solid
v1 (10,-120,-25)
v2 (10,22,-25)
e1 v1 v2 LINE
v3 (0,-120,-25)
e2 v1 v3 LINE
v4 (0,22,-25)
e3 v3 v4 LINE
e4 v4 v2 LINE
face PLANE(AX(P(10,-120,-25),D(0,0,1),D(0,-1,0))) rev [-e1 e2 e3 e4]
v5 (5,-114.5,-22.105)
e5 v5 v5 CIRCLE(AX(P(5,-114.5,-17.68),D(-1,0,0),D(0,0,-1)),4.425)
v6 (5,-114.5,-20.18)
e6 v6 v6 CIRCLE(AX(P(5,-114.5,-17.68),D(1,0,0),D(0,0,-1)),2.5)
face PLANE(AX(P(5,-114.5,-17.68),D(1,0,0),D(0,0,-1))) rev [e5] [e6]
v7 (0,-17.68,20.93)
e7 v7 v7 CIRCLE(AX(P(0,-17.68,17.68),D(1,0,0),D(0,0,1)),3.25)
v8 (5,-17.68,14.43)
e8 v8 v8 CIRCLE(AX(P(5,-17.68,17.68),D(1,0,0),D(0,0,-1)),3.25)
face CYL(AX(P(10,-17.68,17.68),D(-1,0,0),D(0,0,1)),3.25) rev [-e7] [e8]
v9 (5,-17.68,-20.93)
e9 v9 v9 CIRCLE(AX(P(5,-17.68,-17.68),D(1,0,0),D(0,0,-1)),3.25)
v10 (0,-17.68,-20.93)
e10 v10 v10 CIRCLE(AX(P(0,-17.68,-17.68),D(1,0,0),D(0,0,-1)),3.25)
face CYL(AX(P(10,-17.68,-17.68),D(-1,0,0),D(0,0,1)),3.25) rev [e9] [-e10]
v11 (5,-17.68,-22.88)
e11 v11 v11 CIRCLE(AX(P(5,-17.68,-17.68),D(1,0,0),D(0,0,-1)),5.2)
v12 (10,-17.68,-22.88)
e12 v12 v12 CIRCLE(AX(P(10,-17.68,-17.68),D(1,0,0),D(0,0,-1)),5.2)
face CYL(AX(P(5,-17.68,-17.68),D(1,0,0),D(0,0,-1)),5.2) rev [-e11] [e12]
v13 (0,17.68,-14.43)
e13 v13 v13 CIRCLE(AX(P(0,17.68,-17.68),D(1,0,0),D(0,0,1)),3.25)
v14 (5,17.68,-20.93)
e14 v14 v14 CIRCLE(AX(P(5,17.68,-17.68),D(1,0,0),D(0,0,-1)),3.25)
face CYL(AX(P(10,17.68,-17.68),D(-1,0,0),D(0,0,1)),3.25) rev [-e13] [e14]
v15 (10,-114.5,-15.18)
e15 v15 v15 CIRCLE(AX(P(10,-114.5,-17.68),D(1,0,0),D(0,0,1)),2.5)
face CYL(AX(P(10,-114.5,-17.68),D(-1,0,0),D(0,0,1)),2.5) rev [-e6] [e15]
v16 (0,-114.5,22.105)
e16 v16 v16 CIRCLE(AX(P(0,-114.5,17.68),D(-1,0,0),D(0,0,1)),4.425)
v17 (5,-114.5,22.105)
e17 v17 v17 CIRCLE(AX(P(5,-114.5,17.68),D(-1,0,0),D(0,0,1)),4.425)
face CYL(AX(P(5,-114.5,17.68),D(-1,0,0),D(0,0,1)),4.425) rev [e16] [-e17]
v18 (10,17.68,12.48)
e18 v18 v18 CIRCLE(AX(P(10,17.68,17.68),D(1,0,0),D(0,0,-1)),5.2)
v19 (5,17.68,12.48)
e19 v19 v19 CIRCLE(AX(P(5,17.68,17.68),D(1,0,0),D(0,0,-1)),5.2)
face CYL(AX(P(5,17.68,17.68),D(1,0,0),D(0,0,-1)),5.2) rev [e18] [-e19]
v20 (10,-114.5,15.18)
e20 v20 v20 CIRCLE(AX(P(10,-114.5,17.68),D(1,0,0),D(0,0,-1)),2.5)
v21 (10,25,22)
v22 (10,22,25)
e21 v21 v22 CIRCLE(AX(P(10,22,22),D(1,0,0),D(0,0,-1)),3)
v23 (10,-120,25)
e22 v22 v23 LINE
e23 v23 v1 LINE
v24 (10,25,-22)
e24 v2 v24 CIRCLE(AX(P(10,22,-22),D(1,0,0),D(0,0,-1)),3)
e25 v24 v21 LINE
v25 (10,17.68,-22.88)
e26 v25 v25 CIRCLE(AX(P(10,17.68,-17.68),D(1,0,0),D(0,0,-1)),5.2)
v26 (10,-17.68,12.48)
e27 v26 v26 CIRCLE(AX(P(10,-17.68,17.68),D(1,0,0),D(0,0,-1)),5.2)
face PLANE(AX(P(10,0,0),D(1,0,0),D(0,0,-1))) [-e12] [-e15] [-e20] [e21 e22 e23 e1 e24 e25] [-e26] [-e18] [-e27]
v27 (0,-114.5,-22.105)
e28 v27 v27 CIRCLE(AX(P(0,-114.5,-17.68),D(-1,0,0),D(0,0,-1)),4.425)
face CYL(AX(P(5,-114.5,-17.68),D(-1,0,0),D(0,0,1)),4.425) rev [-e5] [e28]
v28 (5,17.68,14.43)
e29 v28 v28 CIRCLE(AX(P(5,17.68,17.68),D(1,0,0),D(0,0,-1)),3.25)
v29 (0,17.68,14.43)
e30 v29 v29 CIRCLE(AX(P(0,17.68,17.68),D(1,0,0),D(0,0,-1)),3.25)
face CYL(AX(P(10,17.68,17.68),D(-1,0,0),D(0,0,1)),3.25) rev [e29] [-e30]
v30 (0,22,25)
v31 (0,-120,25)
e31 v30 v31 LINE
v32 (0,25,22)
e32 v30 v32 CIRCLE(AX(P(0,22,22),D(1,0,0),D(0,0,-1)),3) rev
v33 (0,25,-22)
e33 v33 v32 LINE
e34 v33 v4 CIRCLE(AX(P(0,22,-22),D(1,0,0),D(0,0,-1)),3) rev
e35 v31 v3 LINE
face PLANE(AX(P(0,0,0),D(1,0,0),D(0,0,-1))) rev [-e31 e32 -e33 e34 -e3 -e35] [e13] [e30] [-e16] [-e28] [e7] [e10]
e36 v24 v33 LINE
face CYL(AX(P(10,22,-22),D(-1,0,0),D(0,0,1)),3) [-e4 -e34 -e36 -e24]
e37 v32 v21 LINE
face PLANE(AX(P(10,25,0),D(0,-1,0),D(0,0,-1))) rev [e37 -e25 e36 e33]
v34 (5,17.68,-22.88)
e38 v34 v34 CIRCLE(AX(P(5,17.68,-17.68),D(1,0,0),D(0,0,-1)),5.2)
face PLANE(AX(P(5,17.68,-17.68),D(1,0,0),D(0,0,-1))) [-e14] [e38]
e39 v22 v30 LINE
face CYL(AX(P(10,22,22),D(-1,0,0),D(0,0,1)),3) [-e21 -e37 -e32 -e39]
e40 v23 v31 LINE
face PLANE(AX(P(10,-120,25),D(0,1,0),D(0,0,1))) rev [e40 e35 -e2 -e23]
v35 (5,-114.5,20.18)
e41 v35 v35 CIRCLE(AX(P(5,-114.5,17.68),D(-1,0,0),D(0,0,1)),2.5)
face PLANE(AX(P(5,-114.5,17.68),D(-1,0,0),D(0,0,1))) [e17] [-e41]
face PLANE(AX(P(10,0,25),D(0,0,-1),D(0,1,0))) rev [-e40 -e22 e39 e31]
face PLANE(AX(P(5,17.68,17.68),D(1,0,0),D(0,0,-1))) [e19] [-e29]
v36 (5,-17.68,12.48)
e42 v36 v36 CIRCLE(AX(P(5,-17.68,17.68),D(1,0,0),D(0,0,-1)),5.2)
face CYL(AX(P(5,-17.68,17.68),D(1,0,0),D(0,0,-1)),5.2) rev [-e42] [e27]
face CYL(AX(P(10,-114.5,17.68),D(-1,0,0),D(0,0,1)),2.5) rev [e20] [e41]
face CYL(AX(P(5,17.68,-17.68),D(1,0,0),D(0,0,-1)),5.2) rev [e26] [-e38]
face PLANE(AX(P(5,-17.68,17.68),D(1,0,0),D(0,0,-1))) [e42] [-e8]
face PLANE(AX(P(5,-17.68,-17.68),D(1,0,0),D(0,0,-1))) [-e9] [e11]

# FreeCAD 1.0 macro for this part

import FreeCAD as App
import Part
import Sketcher

V = App.Vector


def edges_at(feature, points):
    """Names of the edges that pass closest to the given points."""
    edges = feature.Shape.Edges
    near = lambda p: min(range(len(edges)), key=lambda i: edges[i].distToShape(Part.Vertex(*p))[0])
    return sorted({f"Edge{near(p) + 1}" for p in points})

doc = App.newDocument("Part")
body = doc.addObject("PartDesign::Body", "Body")

# Sketch on YZ plane
sketch1 = body.newObject("Sketcher::SketchObject", "Sketch")
sketch1.AttachmentSupport = (doc.getObject("YZ_Plane"), [""])
sketch1.MapMode = "FlatFace"
sketch1.addGeometry([
    Part.LineSegment(V(-120, 25, 0), V(-120, -25, 0)),  # 0
    Part.LineSegment(V(-120, -25, 0), V(25, -25, 0)),  # 1
    Part.LineSegment(V(25, -25, 0), V(25, 25, 0)),  # 2
    Part.LineSegment(V(25, 25, 0), V(-120, 25, 0)),  # 3
    Part.Circle(V(-114.5, 17.68, 0), V(0, 0, 1), 2.5),  # 4
    Part.Circle(V(-114.5, -17.68, 0), V(0, 0, 1), 2.5),  # 5
    Part.Circle(V(-17.68, 17.68, 0), V(0, 0, 1), 3.25),  # 6
    Part.Circle(V(17.68, 17.68, 0), V(0, 0, 1), 3.25),  # 7
    Part.Circle(V(-17.68, -17.68, 0), V(0, 0, 1), 3.25),  # 8
    Part.Circle(V(17.68, -17.68, 0), V(0, 0, 1), 3.25),  # 9
], False)
sketch1.addConstraint([
    Sketcher.Constraint("Coincident", 0, 2, 1, 1),
    Sketcher.Constraint("Coincident", 1, 2, 2, 1),
    Sketcher.Constraint("Coincident", 2, 2, 3, 1),
    Sketcher.Constraint("Coincident", 3, 2, 0, 1),
    Sketcher.Constraint("Vertical", 0),
    Sketcher.Constraint("Horizontal", 1),
    Sketcher.Constraint("Vertical", 2),
    Sketcher.Constraint("Horizontal", 3),
    Sketcher.Constraint("Equal", 4, 5),
    Sketcher.Constraint("Equal", 6, 7),
    Sketcher.Constraint("Equal", 7, 8),
    Sketcher.Constraint("Equal", 8, 9),
    Sketcher.Constraint("Symmetric", 7, 3, 8, 3, -1, 1),
    Sketcher.Constraint("Symmetric", 6, 3, 9, 3, -1, 1),
    Sketcher.Constraint("Symmetric", 6, 3, 7, 3, -2),
    Sketcher.Constraint("Symmetric", 4, 3, 5, 3, -1),
    Sketcher.Constraint("Horizontal", 4, 3, 6, 3),
    Sketcher.Constraint("Diameter", 4, 5.0),
    Sketcher.Constraint("Diameter", 6, 6.5),
    Sketcher.Constraint("DistanceX", 1, 1, 1, 2, 145.0),
    Sketcher.Constraint("DistanceY", 0, 2, 0, 1, 50.0),
    Sketcher.Constraint("DistanceX", 0, 2, -1, 1, 120.0),
    Sketcher.Constraint("DistanceY", 0, 2, -1, 1, 25.0),
    Sketcher.Constraint("DistanceX", 4, 3, -1, 1, 114.5),
    Sketcher.Constraint("DistanceY", -1, 1, 4, 3, 17.68),
    Sketcher.Constraint("DistanceX", 6, 3, -1, 1, 17.68),
])
pad1 = body.newObject("PartDesign::Pad", "Pad")
pad1.Profile = sketch1
pad1.Length = 10

# Sketch on YZ plane
sketch2 = body.newObject("Sketcher::SketchObject", "Sketch001")
sketch2.AttachmentSupport = (doc.getObject("YZ_Plane"), [""])
sketch2.MapMode = "FlatFace"
sketch2.AttachmentOffset = App.Placement(V(0, 0, 10), App.Rotation())
sketch2.addGeometry([
    Part.Circle(V(17.68, -17.68, 0), V(0, 0, 1), 5.2),
    Part.Circle(V(17.68, 17.68, 0), V(0, 0, 1), 5.2),
    Part.Circle(V(-17.68, 17.68, 0), V(0, 0, 1), 5.2),
    Part.Circle(V(-17.68, -17.68, 0), V(0, 0, 1), 5.2),
], False)
sketch2.addConstraint([
    Sketcher.Constraint("Equal", 0, 1),
    Sketcher.Constraint("Equal", 1, 2),
    Sketcher.Constraint("Equal", 2, 3),
    Sketcher.Constraint("Symmetric", 0, 3, 2, 3, -1, 1),
    Sketcher.Constraint("Symmetric", 1, 3, 3, 3, -1, 1),
    Sketcher.Constraint("Symmetric", 1, 3, 2, 3, -2),
    Sketcher.Constraint("Diameter", 0, 10.4),
    Sketcher.Constraint("DistanceX", -1, 1, 0, 3, 17.68),
    Sketcher.Constraint("DistanceY", 0, 3, -1, 1, 17.68),
])
pocket1 = body.newObject("PartDesign::Pocket", "Pocket")
pocket1.Profile = sketch2
pocket1.Length = 5
doc.recompute()

fillet = body.newObject("PartDesign::Fillet", "Fillet")
fillet.Base = (pocket1, edges_at(pocket1, [(5, 25, -25), (5, 25, 25)]))
fillet.Radius = 3

# Sketch on YZ plane
sketch3 = body.newObject("Sketcher::SketchObject", "Sketch002")
sketch3.AttachmentSupport = (doc.getObject("YZ_Plane"), [""])
sketch3.MapMode = "FlatFace"
sketch3.addGeometry([
    Part.Circle(V(-114.5, 17.68, 0), V(0, 0, 1), 4.425),
    Part.Circle(V(-114.5, -17.68, 0), V(0, 0, 1), 4.425),
], False)
sketch3.addConstraint([
    Sketcher.Constraint("Equal", 0, 1),
    Sketcher.Constraint("Symmetric", 0, 3, 1, 3, -1),
    Sketcher.Constraint("Diameter", 0, 8.85),
    Sketcher.Constraint("DistanceX", 0, 3, -1, 1, 114.5),
    Sketcher.Constraint("DistanceY", -1, 1, 0, 3, 17.68),
])
pocket2 = body.newObject("PartDesign::Pocket", "Pocket001")
pocket2.Profile = sketch3
pocket2.Length = 5
pocket2.Reversed = True

doc.recompute()
